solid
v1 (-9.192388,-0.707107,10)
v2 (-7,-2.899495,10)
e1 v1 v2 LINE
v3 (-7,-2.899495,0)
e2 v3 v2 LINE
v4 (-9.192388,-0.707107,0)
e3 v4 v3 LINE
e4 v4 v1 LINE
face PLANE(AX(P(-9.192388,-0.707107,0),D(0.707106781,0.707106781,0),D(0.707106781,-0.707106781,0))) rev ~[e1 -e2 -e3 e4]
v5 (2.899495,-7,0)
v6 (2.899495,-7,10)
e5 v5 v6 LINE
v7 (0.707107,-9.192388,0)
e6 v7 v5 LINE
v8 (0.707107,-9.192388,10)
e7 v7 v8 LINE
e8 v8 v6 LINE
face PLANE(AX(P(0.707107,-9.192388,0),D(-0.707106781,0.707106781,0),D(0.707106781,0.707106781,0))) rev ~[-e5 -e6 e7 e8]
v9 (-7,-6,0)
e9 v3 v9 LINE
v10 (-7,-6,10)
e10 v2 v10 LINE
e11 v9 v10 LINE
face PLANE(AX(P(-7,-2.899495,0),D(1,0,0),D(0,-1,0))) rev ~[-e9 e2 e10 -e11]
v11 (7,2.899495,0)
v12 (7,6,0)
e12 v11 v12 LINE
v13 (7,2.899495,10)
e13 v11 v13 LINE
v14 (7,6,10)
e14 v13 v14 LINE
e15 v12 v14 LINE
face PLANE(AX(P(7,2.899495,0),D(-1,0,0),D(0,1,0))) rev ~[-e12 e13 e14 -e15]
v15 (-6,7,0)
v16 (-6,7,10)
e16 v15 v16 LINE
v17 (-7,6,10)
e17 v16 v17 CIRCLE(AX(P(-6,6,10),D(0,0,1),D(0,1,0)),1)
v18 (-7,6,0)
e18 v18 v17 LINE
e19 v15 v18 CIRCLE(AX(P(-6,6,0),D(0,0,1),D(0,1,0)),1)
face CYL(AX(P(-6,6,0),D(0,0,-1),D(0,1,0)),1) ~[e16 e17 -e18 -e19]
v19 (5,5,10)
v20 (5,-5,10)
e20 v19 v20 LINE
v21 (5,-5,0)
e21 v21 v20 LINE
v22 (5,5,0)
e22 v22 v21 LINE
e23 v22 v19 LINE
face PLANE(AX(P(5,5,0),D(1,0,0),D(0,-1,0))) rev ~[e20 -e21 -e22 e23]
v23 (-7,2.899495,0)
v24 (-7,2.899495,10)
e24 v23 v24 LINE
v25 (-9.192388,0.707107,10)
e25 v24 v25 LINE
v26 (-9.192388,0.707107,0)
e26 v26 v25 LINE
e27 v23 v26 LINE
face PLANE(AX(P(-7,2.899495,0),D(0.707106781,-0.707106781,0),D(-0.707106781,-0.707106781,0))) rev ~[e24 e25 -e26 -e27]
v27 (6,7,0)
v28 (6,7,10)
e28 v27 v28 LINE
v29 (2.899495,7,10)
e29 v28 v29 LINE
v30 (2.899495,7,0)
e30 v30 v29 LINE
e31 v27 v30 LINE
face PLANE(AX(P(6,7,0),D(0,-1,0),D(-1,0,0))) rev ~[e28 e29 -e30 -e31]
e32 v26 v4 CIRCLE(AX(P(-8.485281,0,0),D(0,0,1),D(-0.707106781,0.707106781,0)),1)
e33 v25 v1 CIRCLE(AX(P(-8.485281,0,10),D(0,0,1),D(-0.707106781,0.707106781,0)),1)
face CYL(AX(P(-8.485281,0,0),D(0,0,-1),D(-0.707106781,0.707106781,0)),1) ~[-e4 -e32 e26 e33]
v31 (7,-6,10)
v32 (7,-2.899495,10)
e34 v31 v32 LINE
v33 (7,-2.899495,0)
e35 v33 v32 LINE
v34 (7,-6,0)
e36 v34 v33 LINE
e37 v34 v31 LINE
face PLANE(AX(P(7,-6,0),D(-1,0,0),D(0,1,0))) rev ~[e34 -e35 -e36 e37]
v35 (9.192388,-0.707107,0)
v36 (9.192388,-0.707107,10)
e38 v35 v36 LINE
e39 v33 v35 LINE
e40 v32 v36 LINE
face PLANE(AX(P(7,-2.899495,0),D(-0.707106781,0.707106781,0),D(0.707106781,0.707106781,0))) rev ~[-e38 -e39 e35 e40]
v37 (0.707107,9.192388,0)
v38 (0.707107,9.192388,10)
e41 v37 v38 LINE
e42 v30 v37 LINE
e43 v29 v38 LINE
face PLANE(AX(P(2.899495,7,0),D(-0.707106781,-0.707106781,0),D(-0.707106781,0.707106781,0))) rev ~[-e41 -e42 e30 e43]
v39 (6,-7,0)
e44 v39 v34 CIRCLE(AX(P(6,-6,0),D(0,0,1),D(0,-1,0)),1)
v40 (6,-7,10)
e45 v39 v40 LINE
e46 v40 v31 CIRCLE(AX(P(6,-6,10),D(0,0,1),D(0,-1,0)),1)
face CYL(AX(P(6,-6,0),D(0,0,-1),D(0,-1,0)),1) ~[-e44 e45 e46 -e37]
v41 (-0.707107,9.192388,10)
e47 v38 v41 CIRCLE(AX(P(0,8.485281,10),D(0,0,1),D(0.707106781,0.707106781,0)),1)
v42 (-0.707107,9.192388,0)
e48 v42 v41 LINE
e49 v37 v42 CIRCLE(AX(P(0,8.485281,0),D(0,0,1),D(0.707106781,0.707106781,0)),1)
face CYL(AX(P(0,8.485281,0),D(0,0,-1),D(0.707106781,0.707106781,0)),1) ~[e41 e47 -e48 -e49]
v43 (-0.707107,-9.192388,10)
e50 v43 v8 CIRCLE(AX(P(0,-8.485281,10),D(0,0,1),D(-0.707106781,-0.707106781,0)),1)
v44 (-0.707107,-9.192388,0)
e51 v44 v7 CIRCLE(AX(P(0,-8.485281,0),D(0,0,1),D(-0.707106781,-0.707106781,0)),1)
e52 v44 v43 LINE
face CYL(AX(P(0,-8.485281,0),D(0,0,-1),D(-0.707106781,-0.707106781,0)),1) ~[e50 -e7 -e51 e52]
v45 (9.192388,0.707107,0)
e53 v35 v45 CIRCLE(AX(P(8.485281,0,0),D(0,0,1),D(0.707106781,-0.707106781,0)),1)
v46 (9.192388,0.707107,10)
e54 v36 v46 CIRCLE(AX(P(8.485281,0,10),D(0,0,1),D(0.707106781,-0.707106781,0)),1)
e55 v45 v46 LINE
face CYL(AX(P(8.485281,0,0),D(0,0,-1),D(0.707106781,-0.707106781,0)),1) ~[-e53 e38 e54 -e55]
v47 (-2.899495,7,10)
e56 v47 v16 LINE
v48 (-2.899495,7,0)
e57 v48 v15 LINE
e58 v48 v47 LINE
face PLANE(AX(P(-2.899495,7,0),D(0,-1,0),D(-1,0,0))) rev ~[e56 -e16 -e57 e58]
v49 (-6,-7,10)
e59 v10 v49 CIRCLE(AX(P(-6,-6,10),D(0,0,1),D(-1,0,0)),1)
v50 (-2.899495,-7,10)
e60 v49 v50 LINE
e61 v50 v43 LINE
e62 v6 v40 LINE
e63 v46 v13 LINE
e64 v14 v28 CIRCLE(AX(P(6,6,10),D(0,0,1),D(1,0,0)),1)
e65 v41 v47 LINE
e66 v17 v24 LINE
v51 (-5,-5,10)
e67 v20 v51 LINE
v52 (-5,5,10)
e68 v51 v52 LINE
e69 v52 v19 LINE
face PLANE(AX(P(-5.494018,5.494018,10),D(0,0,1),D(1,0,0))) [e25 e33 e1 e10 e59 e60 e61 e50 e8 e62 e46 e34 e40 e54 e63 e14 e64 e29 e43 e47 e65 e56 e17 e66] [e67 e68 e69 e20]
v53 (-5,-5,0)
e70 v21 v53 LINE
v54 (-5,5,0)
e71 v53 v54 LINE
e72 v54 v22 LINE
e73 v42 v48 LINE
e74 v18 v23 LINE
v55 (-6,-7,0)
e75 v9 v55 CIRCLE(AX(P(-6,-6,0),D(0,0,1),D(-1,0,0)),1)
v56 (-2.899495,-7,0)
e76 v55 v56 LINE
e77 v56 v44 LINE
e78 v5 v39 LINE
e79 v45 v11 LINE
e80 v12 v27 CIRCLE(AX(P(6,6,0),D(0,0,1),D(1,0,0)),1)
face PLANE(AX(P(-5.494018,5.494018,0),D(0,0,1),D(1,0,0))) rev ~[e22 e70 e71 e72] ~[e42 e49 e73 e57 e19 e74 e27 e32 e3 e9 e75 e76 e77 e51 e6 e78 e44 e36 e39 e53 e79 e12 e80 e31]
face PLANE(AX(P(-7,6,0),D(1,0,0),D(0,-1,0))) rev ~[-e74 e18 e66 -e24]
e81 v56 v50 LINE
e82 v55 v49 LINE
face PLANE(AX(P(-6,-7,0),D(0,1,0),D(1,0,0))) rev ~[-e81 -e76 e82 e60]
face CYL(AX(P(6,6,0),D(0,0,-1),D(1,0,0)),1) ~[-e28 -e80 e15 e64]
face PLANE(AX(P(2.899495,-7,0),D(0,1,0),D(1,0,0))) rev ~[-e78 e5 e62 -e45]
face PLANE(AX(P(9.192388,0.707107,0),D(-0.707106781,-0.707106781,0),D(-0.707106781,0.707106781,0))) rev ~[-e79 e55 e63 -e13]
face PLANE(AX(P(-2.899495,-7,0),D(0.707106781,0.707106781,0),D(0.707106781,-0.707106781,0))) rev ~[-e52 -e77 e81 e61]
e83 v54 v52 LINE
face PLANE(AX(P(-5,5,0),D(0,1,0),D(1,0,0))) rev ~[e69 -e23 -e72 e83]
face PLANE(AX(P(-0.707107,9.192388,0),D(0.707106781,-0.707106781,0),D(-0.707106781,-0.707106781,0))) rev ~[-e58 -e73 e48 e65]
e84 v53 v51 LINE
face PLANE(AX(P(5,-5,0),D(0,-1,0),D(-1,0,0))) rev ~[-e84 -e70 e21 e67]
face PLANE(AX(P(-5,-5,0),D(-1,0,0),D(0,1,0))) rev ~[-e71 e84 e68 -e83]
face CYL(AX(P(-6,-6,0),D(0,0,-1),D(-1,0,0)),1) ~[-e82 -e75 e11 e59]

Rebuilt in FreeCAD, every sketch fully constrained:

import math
import FreeCAD as App
import Part
import Sketcher

V = App.Vector

doc = App.newDocument("Part")
body = doc.addObject("PartDesign::Body", "Body")

sketch1 = body.newObject("Sketcher::SketchObject", "Sketch")
sketch1.AttachmentSupport = (doc.getObject("XY_Plane"), [""])
sketch1.MapMode = "FlatFace"
sketch1.addGeometry(Part.LineSegment(V(-2.9, 7, 0), V(-6, 7, 0)), False)
sketch1.addGeometry(Part.ArcOfCircle(Part.Circle(V(-6, 6, 0), V(0, 0, 1), 1), math.radians(90), math.radians(180)), False)
sketch1.addGeometry(Part.LineSegment(V(-7, 6, 0), V(-7, 2.9, 0)), False)
sketch1.addGeometry(Part.LineSegment(V(-7, 2.9, 0), V(-9.2, 0.7, 0)), False)
sketch1.addGeometry(Part.ArcOfCircle(Part.Circle(V(-8.5, 0, 0), V(0, 0, 1), 1), math.radians(135), math.radians(225)), False)
sketch1.addGeometry(Part.LineSegment(V(-9.2, -0.7, 0), V(-7, -2.9, 0)), False)
sketch1.addGeometry(Part.LineSegment(V(-7, -2.9, 0), V(-7, -6, 0)), False)
sketch1.addGeometry(Part.ArcOfCircle(Part.Circle(V(-6, -6, 0), V(0, 0, 1), 1), math.radians(180), math.radians(270)), False)
sketch1.addGeometry(Part.LineSegment(V(-6, -7, 0), V(-2.9, -7, 0)), False)
sketch1.addGeometry(Part.LineSegment(V(-2.9, -7, 0), V(-0.7, -9.2, 0)), False)
sketch1.addGeometry(Part.ArcOfCircle(Part.Circle(V(0, -8.5, 0), V(0, 0, 1), 1), math.radians(-135), math.radians(-45)), False)
sketch1.addGeometry(Part.LineSegment(V(0.7, -9.2, 0), V(2.9, -7, 0)), False)
sketch1.addGeometry(Part.LineSegment(V(2.9, -7, 0), V(6, -7, 0)), False)
sketch1.addGeometry(Part.ArcOfCircle(Part.Circle(V(6, -6, 0), V(0, 0, 1), 1), math.radians(-90), math.radians(0)), False)
sketch1.addGeometry(Part.LineSegment(V(7, -6, 0), V(7, -2.9, 0)), False)
sketch1.addGeometry(Part.LineSegment(V(7, -2.9, 0), V(9.2, -0.7, 0)), False)
sketch1.addGeometry(Part.ArcOfCircle(Part.Circle(V(8.5, 0, 0), V(0, 0, 1), 1), math.radians(-45), math.radians(45)), False)
sketch1.addGeometry(Part.LineSegment(V(9.2, 0.7, 0), V(7, 2.9, 0)), False)
sketch1.addGeometry(Part.LineSegment(V(7, 2.9, 0), V(7, 6, 0)), False)
sketch1.addGeometry(Part.ArcOfCircle(Part.Circle(V(6, 6, 0), V(0, 0, 1), 1), math.radians(0), math.radians(90)), False)
sketch1.addGeometry(Part.LineSegment(V(6, 7, 0), V(2.9, 7, 0)), False)
sketch1.addGeometry(Part.LineSegment(V(2.9, 7, 0), V(0.7, 9.2, 0)), False)
sketch1.addGeometry(Part.ArcOfCircle(Part.Circle(V(0, 8.5, 0), V(0, 0, 1), 1), math.radians(45), math.radians(135)), False)
sketch1.addGeometry(Part.LineSegment(V(-0.7, 9.2, 0), V(-2.9, 7, 0)), False)
sketch1.addGeometry(Part.LineSegment(V(-5, -5, 0), V(-5, 5, 0)), False)
sketch1.addGeometry(Part.LineSegment(V(-5, 5, 0), V(5, 5, 0)), False)
sketch1.addGeometry(Part.LineSegment(V(5, 5, 0), V(5, -5, 0)), False)
sketch1.addGeometry(Part.LineSegment(V(5, -5, 0), V(-5, -5, 0)), False)
sketch1.addConstraint(Sketcher.Constraint("Tangent", 0, 2, 1, 1))
sketch1.addConstraint(Sketcher.Constraint("Tangent", 1, 2, 2, 1))
sketch1.addConstraint(Sketcher.Constraint("Coincident", 2, 2, 3, 1))
sketch1.addConstraint(Sketcher.Constraint("Tangent", 3, 2, 4, 1))
sketch1.addConstraint(Sketcher.Constraint("Tangent", 4, 2, 5, 1))
sketch1.addConstraint(Sketcher.Constraint("Coincident", 5, 2, 6, 1))
sketch1.addConstraint(Sketcher.Constraint("Tangent", 6, 2, 7, 1))
sketch1.addConstraint(Sketcher.Constraint("Tangent", 7, 2, 8, 1))
sketch1.addConstraint(Sketcher.Constraint("Coincident", 8, 2, 9, 1))
sketch1.addConstraint(Sketcher.Constraint("Tangent", 9, 2, 10, 1))
sketch1.addConstraint(Sketcher.Constraint("Tangent", 10, 2, 11, 1))
sketch1.addConstraint(Sketcher.Constraint("Coincident", 11, 2, 12, 1))
sketch1.addConstraint(Sketcher.Constraint("Tangent", 12, 2, 13, 1))
sketch1.addConstraint(Sketcher.Constraint("Tangent", 13, 2, 14, 1))
sketch1.addConstraint(Sketcher.Constraint("Coincident", 14, 2, 15, 1))
sketch1.addConstraint(Sketcher.Constraint("Tangent", 15, 2, 16, 1))
sketch1.addConstraint(Sketcher.Constraint("Tangent", 16, 2, 17, 1))
sketch1.addConstraint(Sketcher.Constraint("Coincident", 17, 2, 18, 1))
sketch1.addConstraint(Sketcher.Constraint("Tangent", 18, 2, 19, 1))
sketch1.addConstraint(Sketcher.Constraint("Tangent", 19, 2, 20, 1))
sketch1.addConstraint(Sketcher.Constraint("Coincident", 20, 2, 21, 1))
sketch1.addConstraint(Sketcher.Constraint("Tangent", 21, 2, 22, 1))
sketch1.addConstraint(Sketcher.Constraint("Tangent", 22, 2, 23, 1))
sketch1.addConstraint(Sketcher.Constraint("Coincident", 23, 2, 0, 1))
sketch1.addConstraint(Sketcher.Constraint("Coincident", 24, 2, 25, 1))
sketch1.addConstraint(Sketcher.Constraint("Coincident", 25, 2, 26, 1))
sketch1.addConstraint(Sketcher.Constraint("Coincident", 26, 2, 27, 1))
sketch1.addConstraint(Sketcher.Constraint("Coincident", 27, 2, 24, 1))
sketch1.addConstraint(Sketcher.Constraint("Horizontal", 0))
sketch1.addConstraint(Sketcher.Constraint("Vertical", 2))
sketch1.addConstraint(Sketcher.Constraint("Vertical", 6))
sketch1.addConstraint(Sketcher.Constraint("Horizontal", 8))
sketch1.addConstraint(Sketcher.Constraint("Horizontal", 12))
sketch1.addConstraint(Sketcher.Constraint("Vertical", 14))
sketch1.addConstraint(Sketcher.Constraint("Vertical", 18))
sketch1.addConstraint(Sketcher.Constraint("Horizontal", 20))
sketch1.addConstraint(Sketcher.Constraint("Vertical", 24))
sketch1.addConstraint(Sketcher.Constraint("Horizontal", 25))
sketch1.addConstraint(Sketcher.Constraint("Vertical", 26))
sketch1.addConstraint(Sketcher.Constraint("Horizontal", 27))
sketch1.addConstraint(Sketcher.Constraint("Equal", 1, 4))
sketch1.addConstraint(Sketcher.Constraint("Equal", 4, 7))
sketch1.addConstraint(Sketcher.Constraint("Equal", 7, 10))
sketch1.addConstraint(Sketcher.Constraint("Equal", 10, 13))
sketch1.addConstraint(Sketcher.Constraint("Equal", 13, 16))
sketch1.addConstraint(Sketcher.Constraint("Equal", 16, 19))
sketch1.addConstraint(Sketcher.Constraint("Equal", 19, 22))
sketch1.addConstraint(Sketcher.Constraint("Symmetric", 1, 3, 13, 3, -1, 1))
sketch1.addConstraint(Sketcher.Constraint("Symmetric", 4, 3, 16, 3, -1, 1))
sketch1.addConstraint(Sketcher.Constraint("Symmetric", 7, 3, 19, 3, -1, 1))
sketch1.addConstraint(Sketcher.Constraint("Symmetric", 10, 3, 22, 3, -1, 1))
sketch1.addConstraint(Sketcher.Constraint("Symmetric", 24, 2, 26, 2, -1, 1))
sketch1.addConstraint(Sketcher.Constraint("Symmetric", 7, 3, 13, 3, -2))
sketch1.addConstraint(Sketcher.Constraint("Symmetric", 9, 2, 10, 2, -2))
sketch1.addConstraint(Sketcher.Constraint("Symmetric", 4, 2, 15, 2, -2))
sketch1.addConstraint(Sketcher.Constraint("Perpendicular", 3, 5))
sketch1.addConstraint(Sketcher.Constraint("Parallel", 5, 9))
sketch1.addConstraint(Sketcher.Constraint("Perpendicular", 9, 11))
sketch1.addConstraint(Sketcher.Constraint("Perpendicular", 15, 17))
sketch1.addConstraint(Sketcher.Constraint("Parallel", 17, 21))
sketch1.addConstraint(Sketcher.Constraint("Perpendicular", 21, 23))
sketch1.addConstraint(Sketcher.Constraint("Equal", 20, 2))
sketch1.addConstraint(Sketcher.Constraint("Equal", 27, 24))
sketch1.addConstraint(Sketcher.Constraint("Equal", 5, 9))
sketch1.addConstraint(Sketcher.Constraint("Radius", 1, 1.0))
sketch1.addConstraint(Sketcher.Constraint("DistanceX", 25, 1, 25, 2, 10.0))
sketch1.addConstraint(Sketcher.Constraint("DistanceX", 1, 3, -1, 1, 6.0))
sketch1.addConstraint(Sketcher.Constraint("DistanceY", 4, 2, 2, 2, 3.606602))
pad1 = body.newObject("PartDesign::Pad", "Pad")
pad1.Profile = sketch1
pad1.Length = 10

doc.recompute()
